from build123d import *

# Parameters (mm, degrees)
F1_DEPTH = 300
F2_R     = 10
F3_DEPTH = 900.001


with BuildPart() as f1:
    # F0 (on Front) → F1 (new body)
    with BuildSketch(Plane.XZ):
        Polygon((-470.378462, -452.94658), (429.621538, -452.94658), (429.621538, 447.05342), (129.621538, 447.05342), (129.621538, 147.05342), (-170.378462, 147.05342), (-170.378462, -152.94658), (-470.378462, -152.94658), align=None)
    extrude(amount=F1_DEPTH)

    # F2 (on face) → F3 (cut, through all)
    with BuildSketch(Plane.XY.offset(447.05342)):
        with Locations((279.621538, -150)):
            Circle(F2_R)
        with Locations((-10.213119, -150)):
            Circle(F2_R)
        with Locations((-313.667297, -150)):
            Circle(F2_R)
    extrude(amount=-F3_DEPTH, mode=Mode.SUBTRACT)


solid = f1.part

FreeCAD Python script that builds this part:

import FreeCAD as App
import Part
import Sketcher

V = App.Vector


def add_polygon(sketch, points):
    """Adds a closed chain of lines whose ends are joined by coincident constraints."""
    first, n = sketch.GeometryCount, len(points)
    for a, b in zip(points, points[1:] + points[:1]):
        sketch.addGeometry(Part.LineSegment(App.Vector(*a, 0), App.Vector(*b, 0)), False)
    for i in range(n):
        sketch.addConstraint(Sketcher.Constraint("Coincident", first + i, 2, first + (i + 1) % n, 1))

doc = App.newDocument("Part")
params = doc.addObject("Spreadsheet::Sheet", "Params")
for row, (alias, value) in enumerate([
    ("sketch1_width", "900 mm"),
    ("pad1_length", "300 mm"),
    ("sketch2_diameter", "20 mm"),
], start=1):
    params.set(f"A{row}", alias)
    params.set(f"B{row}", "=" + value)
    params.setAlias(f"B{row}", alias)

body = doc.addObject("PartDesign::Body", "Body")

sketch1 = body.newObject("Sketcher::SketchObject", "Sketch")
sketch1.AttachmentSupport = (doc.getObject("XZ_Plane"), [""])
sketch1.MapMode = "FlatFace"
add_polygon(sketch1, [(-470.378462, -452.94658), (429.621538, -452.94658), (429.621538, 447.05342), (129.621538, 447.05342), (129.621538, 147.05342), (-170.378462, 147.05342), (-170.378462, -152.94658), (-470.378462, -152.94658)])
sketch1.addConstraint([
    Sketcher.Constraint("Horizontal", 0),
    Sketcher.Constraint("Vertical", 1),
    Sketcher.Constraint("Horizontal", 2),
    Sketcher.Constraint("Vertical", 3),
    Sketcher.Constraint("Horizontal", 4),
    Sketcher.Constraint("Vertical", 5),
    Sketcher.Constraint("Horizontal", 6),
    Sketcher.Constraint("Vertical", 7),
    Sketcher.Constraint("Equal", 2, 4),
    Sketcher.Constraint("Equal", 4, 6),
    Sketcher.Constraint("Equal", 0, 1),
    Sketcher.Constraint("Equal", 6, 3),
    Sketcher.Constraint("Equal", 3, 5),
    Sketcher.Constraint("DistanceX", 0, 1, 0, 2, 900.0),
    Sketcher.Constraint("DistanceX", -1, 1, 0, 2, 429.621538),
    Sketcher.Constraint("DistanceY", 0, 2, -1, 1, 452.94658),
])
sketch1.setExpression("Constraints[21]", "Params.sketch1_width")
pad1 = body.newObject("PartDesign::Pad", "Pad")
pad1.Profile = sketch1
pad1.setExpression("Length", "Params.pad1_length")

sketch2 = body.newObject("Sketcher::SketchObject", "Sketch001")
sketch2.AttachmentSupport = (doc.getObject("XY_Plane"), [""])
sketch2.MapMode = "FlatFace"
sketch2.AttachmentOffset = App.Placement(V(0, 0, 447.05342), App.Rotation())
sketch2.addGeometry([
    Part.Circle(V(279.621538, -150, 0), V(0, 0, 1), 10),
    Part.Circle(V(-10.213119, -150, 0), V(0, 0, 1), 10),
    Part.Circle(V(-313.667297, -150, 0), V(0, 0, 1), 10),
], False)
sketch2.addConstraint([
    Sketcher.Constraint("Equal", 0, 1),
    Sketcher.Constraint("Equal", 1, 2),
    Sketcher.Constraint("Horizontal", 0, 3, 1, 3),
    Sketcher.Constraint("Horizontal", 1, 3, 2, 3),
    Sketcher.Constraint("Diameter", 0, 20.0),
    Sketcher.Constraint("DistanceY", 0, 3, -1, 1, 150.0),
    Sketcher.Constraint("DistanceX", -1, 1, 0, 3, 279.621538),
    Sketcher.Constraint("DistanceX", 1, 3, -1, 1, 10.213119),
    Sketcher.Constraint("DistanceX", 2, 3, 1, 3, 303.454178),
])
sketch2.setExpression("Constraints[4]", "Params.sketch2_diameter")
pocket1 = body.newObject("PartDesign::Pocket", "Pocket")
pocket1.Profile = sketch2
pocket1.Type = "ThroughAll"

doc.recompute()
